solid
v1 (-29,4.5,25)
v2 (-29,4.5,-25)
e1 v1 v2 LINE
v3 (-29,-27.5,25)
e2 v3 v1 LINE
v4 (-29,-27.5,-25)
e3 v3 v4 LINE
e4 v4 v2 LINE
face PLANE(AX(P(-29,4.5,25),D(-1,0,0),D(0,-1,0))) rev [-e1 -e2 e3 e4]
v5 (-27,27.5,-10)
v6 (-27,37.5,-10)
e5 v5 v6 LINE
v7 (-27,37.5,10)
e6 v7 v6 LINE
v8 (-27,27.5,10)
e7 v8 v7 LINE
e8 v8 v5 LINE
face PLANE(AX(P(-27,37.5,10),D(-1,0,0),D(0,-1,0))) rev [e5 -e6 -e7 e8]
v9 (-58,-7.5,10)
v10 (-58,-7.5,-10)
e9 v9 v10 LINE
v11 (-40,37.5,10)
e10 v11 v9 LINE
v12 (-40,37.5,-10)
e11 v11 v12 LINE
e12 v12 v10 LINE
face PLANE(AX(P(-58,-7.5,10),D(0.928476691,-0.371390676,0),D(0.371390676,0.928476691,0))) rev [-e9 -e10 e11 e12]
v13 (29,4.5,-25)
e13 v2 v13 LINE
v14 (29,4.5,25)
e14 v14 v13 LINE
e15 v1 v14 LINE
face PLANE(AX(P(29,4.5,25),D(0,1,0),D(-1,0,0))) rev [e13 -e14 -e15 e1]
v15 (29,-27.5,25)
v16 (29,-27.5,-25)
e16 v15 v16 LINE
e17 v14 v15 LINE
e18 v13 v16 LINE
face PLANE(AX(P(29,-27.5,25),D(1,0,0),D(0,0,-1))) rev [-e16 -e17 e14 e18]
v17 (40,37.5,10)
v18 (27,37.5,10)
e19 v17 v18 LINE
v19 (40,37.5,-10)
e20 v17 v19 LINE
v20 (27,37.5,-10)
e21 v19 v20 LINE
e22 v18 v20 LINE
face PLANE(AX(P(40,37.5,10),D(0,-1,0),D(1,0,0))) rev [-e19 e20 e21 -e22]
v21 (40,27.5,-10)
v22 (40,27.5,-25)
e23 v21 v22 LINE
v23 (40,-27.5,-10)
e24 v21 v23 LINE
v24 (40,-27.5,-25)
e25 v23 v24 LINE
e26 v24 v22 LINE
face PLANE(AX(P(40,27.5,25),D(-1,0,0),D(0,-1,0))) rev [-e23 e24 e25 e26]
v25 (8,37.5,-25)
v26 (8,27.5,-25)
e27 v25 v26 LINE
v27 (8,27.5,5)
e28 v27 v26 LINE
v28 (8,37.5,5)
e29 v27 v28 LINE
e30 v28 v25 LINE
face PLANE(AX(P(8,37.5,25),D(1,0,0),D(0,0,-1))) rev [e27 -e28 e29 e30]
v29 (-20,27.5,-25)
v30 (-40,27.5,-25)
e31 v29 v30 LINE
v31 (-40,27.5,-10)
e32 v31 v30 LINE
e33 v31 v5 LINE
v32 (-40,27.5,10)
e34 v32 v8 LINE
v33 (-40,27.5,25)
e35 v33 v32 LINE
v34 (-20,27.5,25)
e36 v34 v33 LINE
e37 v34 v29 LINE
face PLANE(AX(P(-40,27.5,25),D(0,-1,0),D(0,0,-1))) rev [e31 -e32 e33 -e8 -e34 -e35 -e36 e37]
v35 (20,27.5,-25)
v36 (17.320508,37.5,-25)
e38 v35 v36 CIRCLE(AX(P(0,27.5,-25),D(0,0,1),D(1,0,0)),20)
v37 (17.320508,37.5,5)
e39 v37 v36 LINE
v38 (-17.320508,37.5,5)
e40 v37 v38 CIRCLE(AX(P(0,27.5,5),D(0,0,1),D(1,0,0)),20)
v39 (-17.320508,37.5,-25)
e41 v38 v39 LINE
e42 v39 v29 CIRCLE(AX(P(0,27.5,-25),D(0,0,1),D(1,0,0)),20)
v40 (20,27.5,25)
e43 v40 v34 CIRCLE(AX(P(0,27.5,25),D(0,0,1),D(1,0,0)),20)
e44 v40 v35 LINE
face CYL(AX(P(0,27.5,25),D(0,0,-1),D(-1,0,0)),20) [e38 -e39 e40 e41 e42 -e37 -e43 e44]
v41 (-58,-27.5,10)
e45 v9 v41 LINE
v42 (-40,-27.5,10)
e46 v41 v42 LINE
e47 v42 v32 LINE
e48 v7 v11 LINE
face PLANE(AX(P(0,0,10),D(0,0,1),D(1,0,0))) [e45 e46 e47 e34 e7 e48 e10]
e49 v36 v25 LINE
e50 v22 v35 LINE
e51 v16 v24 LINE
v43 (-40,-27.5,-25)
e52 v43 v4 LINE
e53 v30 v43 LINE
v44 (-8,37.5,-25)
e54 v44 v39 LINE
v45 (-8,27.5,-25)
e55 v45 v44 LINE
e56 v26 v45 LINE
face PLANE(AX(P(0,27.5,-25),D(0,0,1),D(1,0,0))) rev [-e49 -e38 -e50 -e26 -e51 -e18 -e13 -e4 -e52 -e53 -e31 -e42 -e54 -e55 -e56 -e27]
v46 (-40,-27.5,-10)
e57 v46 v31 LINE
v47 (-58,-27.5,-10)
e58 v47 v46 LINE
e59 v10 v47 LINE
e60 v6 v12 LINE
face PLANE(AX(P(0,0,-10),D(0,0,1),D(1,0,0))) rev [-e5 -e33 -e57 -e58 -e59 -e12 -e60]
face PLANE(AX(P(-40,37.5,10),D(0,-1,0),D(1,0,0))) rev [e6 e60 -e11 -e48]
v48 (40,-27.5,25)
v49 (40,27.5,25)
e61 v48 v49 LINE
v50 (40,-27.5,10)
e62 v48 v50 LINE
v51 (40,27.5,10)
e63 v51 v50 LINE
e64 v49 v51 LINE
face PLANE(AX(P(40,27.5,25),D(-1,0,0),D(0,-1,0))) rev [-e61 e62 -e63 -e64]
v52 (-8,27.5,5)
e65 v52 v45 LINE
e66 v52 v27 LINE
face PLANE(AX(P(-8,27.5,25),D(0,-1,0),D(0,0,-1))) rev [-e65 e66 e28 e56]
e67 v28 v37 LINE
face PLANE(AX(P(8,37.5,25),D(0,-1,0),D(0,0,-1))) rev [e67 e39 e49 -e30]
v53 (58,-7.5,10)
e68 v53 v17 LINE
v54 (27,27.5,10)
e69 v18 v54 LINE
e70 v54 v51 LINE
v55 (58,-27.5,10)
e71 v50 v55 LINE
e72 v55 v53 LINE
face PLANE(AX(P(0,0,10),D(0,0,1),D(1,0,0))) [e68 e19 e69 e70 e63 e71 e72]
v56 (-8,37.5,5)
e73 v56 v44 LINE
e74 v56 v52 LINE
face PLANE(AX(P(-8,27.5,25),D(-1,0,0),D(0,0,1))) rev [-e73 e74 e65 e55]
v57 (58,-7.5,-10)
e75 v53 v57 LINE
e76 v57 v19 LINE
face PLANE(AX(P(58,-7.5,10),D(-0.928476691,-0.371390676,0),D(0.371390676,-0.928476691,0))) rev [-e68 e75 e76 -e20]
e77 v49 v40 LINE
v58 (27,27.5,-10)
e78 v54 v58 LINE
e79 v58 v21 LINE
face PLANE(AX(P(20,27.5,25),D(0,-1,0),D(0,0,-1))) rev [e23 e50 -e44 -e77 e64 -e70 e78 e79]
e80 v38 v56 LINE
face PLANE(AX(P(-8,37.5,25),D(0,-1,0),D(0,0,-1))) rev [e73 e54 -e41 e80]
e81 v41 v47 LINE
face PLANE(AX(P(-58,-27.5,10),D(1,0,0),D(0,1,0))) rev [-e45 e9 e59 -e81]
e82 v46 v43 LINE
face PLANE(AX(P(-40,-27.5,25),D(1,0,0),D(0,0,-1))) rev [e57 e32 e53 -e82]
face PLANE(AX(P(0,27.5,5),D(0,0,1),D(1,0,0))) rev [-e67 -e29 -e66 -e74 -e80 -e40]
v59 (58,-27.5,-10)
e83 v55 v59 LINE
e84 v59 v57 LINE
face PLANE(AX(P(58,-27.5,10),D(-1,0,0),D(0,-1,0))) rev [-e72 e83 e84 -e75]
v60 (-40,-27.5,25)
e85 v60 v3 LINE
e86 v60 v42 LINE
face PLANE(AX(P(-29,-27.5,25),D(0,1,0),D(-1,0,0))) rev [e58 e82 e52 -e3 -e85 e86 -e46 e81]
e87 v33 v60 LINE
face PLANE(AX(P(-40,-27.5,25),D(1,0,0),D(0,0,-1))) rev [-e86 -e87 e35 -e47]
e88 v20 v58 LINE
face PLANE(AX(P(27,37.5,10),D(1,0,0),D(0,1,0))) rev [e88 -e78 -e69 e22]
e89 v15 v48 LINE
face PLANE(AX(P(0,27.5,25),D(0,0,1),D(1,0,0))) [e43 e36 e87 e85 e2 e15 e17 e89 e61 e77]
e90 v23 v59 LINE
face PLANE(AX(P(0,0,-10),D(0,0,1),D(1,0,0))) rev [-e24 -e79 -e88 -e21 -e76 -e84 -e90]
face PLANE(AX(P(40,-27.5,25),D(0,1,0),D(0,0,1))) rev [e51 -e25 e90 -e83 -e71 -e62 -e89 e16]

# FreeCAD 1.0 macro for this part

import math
import FreeCAD as App
import Part
import Sketcher

V = App.Vector

doc = App.newDocument("Part")
body = doc.addObject("PartDesign::Body", "Body")

# Sketch on XY plane
sketch1 = body.newObject("Sketcher::SketchObject", "Sketch")
sketch1.AttachmentSupport = (doc.getObject("XY_Plane"), [""])
sketch1.MapMode = "FlatFace"
sketch1.addGeometry(Part.LineSegment(V(-40, 28, 0), V(-40, -28, 0)), False)
sketch1.addGeometry(Part.LineSegment(V(-40, -28, 0), V(-29, -28, 0)), False)
sketch1.addGeometry(Part.LineSegment(V(-29, -28, 0), V(-29, 4, 0)), False)
sketch1.addGeometry(Part.LineSegment(V(-29, 4, 0), V(29, 4, 0)), False)
sketch1.addGeometry(Part.LineSegment(V(29, 4, 0), V(29, -28, 0)), False)
sketch1.addGeometry(Part.LineSegment(V(29, -28, 0), V(40, -28, 0)), False)
sketch1.addGeometry(Part.LineSegment(V(40, -28, 0), V(40, 28, 0)), False)
sketch1.addGeometry(Part.LineSegment(V(40, 28, 0), V(20, 28, 0)), False)
sketch1.addGeometry(Part.ArcOfCircle(Part.Circle(V(0, 28, 0), V(0, 0, 1), 20), math.radians(0), math.radians(30)), False)
sketch1.addGeometry(Part.LineSegment(V(17, 38, 0), V(8, 38, 0)), False)
sketch1.addGeometry(Part.LineSegment(V(8, 38, 0), V(8, 28, 0)), False)
sketch1.addGeometry(Part.LineSegment(V(8, 28, 0), V(-8, 28, 0)), False)
sketch1.addGeometry(Part.LineSegment(V(-8, 28, 0), V(-8, 38, 0)), False)
sketch1.addGeometry(Part.LineSegment(V(-8, 38, 0), V(-17, 38, 0)), False)
sketch1.addGeometry(Part.ArcOfCircle(Part.Circle(V(0, 28, 0), V(0, 0, 1), 20), math.radians(150), math.radians(180)), False)
sketch1.addGeometry(Part.LineSegment(V(-20, 28, 0), V(-40, 28, 0)), False)
sketch1.addConstraint(Sketcher.Constraint("Coincident", 0, 2, 1, 1))
sketch1.addConstraint(Sketcher.Constraint("Coincident", 1, 2, 2, 1))
sketch1.addConstraint(Sketcher.Constraint("Coincident", 2, 2, 3, 1))
sketch1.addConstraint(Sketcher.Constraint("Coincident", 3, 2, 4, 1))
sketch1.addConstraint(Sketcher.Constraint("Coincident", 4, 2, 5, 1))
sketch1.addConstraint(Sketcher.Constraint("Coincident", 5, 2, 6, 1))
sketch1.addConstraint(Sketcher.Constraint("Coincident", 6, 2, 7, 1))
sketch1.addConstraint(Sketcher.Constraint("Coincident", 7, 2, 8, 1))
sketch1.addConstraint(Sketcher.Constraint("Coincident", 8, 2, 9, 1))
sketch1.addConstraint(Sketcher.Constraint("Coincident", 9, 2, 10, 1))
sketch1.addConstraint(Sketcher.Constraint("Coincident", 10, 2, 11, 1))
sketch1.addConstraint(Sketcher.Constraint("Coincident", 11, 2, 12, 1))
sketch1.addConstraint(Sketcher.Constraint("Coincident", 12, 2, 13, 1))
sketch1.addConstraint(Sketcher.Constraint("Coincident", 13, 2, 14, 1))
sketch1.addConstraint(Sketcher.Constraint("Coincident", 14, 2, 15, 1))
sketch1.addConstraint(Sketcher.Constraint("Coincident", 15, 2, 0, 1))
sketch1.addConstraint(Sketcher.Constraint("Vertical", 0))
sketch1.addConstraint(Sketcher.Constraint("Horizontal", 1))
sketch1.addConstraint(Sketcher.Constraint("Vertical", 2))
sketch1.addConstraint(Sketcher.Constraint("Horizontal", 3))
sketch1.addConstraint(Sketcher.Constraint("Vertical", 4))
sketch1.addConstraint(Sketcher.Constraint("Horizontal", 5))
sketch1.addConstraint(Sketcher.Constraint("Vertical", 6))
sketch1.addConstraint(Sketcher.Constraint("Horizontal", 7))
sketch1.addConstraint(Sketcher.Constraint("Horizontal", 9))
sketch1.addConstraint(Sketcher.Constraint("Vertical", 10))
sketch1.addConstraint(Sketcher.Constraint("Horizontal", 11))
sketch1.addConstraint(Sketcher.Constraint("Vertical", 12))
sketch1.addConstraint(Sketcher.Constraint("Horizontal", 13))
sketch1.addConstraint(Sketcher.Constraint("Horizontal", 15))
sketch1.addConstraint(Sketcher.Constraint("Coincident", 14, 3, 8, 3))
sketch1.addConstraint(Sketcher.Constraint("Equal", 8, 14))
sketch1.addConstraint(Sketcher.Constraint("Symmetric", 0, 2, 6, 2, -1, 1))
sketch1.addConstraint(Sketcher.Constraint("Symmetric", 1, 2, 4, 2, -2))
sketch1.addConstraint(Sketcher.Constraint("Symmetric", 9, 2, 12, 2, -2))
sketch1.addConstraint(Sketcher.Constraint("Symmetric", 7, 2, 14, 2, -2))
sketch1.addConstraint(Sketcher.Constraint("Horizontal", 14, 3, 6, 2))
sketch1.addConstraint(Sketcher.Constraint("Horizontal", 7, 2, 10, 2))
sketch1.addConstraint(Sketcher.Constraint("Radius", 8, 20.0))
sketch1.addConstraint(Sketcher.Constraint("DistanceX", 1, 1, 1, 2, 11.0))
sketch1.addConstraint(Sketcher.Constraint("DistanceX", 3, 1, 3, 2, 58.0))
sketch1.addConstraint(Sketcher.Constraint("DistanceX", 11, 2, 11, 1, 16.0))
sketch1.addConstraint(Sketcher.Constraint("DistanceY", 0, 2, 0, 1, 55.0))
sketch1.addConstraint(Sketcher.Constraint("DistanceY", 2, 1, 2, 2, 32.0))
sketch1.addConstraint(Sketcher.Constraint("DistanceY", 10, 2, 10, 1, 10.0))
pad1 = body.newObject("PartDesign::Pad", "Pad")
pad1.Profile = sketch1
pad1.Length = 50
pad1.Midplane = True

# Sketch on XY plane
sketch2 = body.newObject("Sketcher::SketchObject", "Sketch001")
sketch2.AttachmentSupport = (doc.getObject("XY_Plane"), [""])
sketch2.MapMode = "FlatFace"
sketch2.AttachmentOffset = App.Placement(V(0, 0, 25), App.Rotation())
sketch2.addGeometry(Part.LineSegment(V(8, 38, 0), V(17, 38, 0)), False)
sketch2.addGeometry(Part.ArcOfCircle(Part.Circle(V(0, 27, 0), V(0, 0, 1), 20), math.radians(30), math.radians(150)), False)
sketch2.addGeometry(Part.LineSegment(V(-17, 38, 0), V(-8, 38, 0)), False)
sketch2.addGeometry(Part.LineSegment(V(-8, 38, 0), V(-8, 28, 0)), False)
sketch2.addGeometry(Part.LineSegment(V(-8, 28, 0), V(8, 28, 0)), False)
sketch2.addGeometry(Part.LineSegment(V(8, 28, 0), V(8, 38, 0)), False)
sketch2.addConstraint(Sketcher.Constraint("Coincident", 0, 2, 1, 1))
sketch2.addConstraint(Sketcher.Constraint("Coincident", 1, 2, 2, 1))
sketch2.addConstraint(Sketcher.Constraint("Coincident", 2, 2, 3, 1))
sketch2.addConstraint(Sketcher.Constraint("Coincident", 3, 2, 4, 1))
sketch2.addConstraint(Sketcher.Constraint("Coincident", 4, 2, 5, 1))
sketch2.addConstraint(Sketcher.Constraint("Coincident", 5, 2, 0, 1))
sketch2.addConstraint(Sketcher.Constraint("Horizontal", 0))
sketch2.addConstraint(Sketcher.Constraint("Horizontal", 2))
sketch2.addConstraint(Sketcher.Constraint("Vertical", 3))
sketch2.addConstraint(Sketcher.Constraint("Horizontal", 4))
sketch2.addConstraint(Sketcher.Constraint("Vertical", 5))
sketch2.addConstraint(Sketcher.Constraint("Symmetric", 0, 2, 1, 2, -2))
sketch2.addConstraint(Sketcher.Constraint("Horizontal", 1, 3, 3, 2))
sketch2.addConstraint(Sketcher.Constraint("Equal", 0, 2))
sketch2.addConstraint(Sketcher.Constraint("Radius", 1, 20.0))
sketch2.addConstraint(Sketcher.Constraint("DistanceX", 4, 1, 4, 2, 16.0))
sketch2.addConstraint(Sketcher.Constraint("DistanceY", 3, 2, 3, 1, 10.0))
sketch2.addConstraint(Sketcher.Constraint("DistanceY", -1, 1, 1, 3, 27.5))
pad2 = body.newObject("PartDesign::Pad", "Pad001")
pad2.Profile = sketch2
pad2.Length = 20
pad2.Reversed = True

# Sketch on XY plane
sketch3 = body.newObject("Sketcher::SketchObject", "Sketch002")
sketch3.AttachmentSupport = (doc.getObject("XY_Plane"), [""])
sketch3.MapMode = "FlatFace"
sketch3.addGeometry(Part.LineSegment(V(-40, -28, 0), V(-40, 28, 0)), False)
sketch3.addGeometry(Part.LineSegment(V(-40, 28, 0), V(-27, 28, 0)), False)
sketch3.addGeometry(Part.LineSegment(V(-27, 28, 0), V(-27, 38, 0)), False)
sketch3.addGeometry(Part.LineSegment(V(-27, 38, 0), V(-40, 38, 0)), False)
sketch3.addGeometry(Part.LineSegment(V(-40, 38, 0), V(-58, -8, 0)), False)
sketch3.addGeometry(Part.LineSegment(V(-58, -8, 0), V(-58, -28, 0)), False)
sketch3.addGeometry(Part.LineSegment(V(-58, -28, 0), V(-40, -28, 0)), False)
sketch3.addGeometry(Part.LineSegment(V(27, 28, 0), V(40, 28, 0)), False)
sketch3.addGeometry(Part.LineSegment(V(40, 28, 0), V(40, -28, 0)), False)
sketch3.addGeometry(Part.LineSegment(V(40, -28, 0), V(58, -28, 0)), False)
sketch3.addGeometry(Part.LineSegment(V(58, -28, 0), V(58, -8, 0)), False)
sketch3.addGeometry(Part.LineSegment(V(58, -8, 0), V(40, 38, 0)), False)
sketch3.addGeometry(Part.LineSegment(V(40, 38, 0), V(27, 38, 0)), False)
sketch3.addGeometry(Part.LineSegment(V(27, 38, 0), V(27, 28, 0)), False)
sketch3.addConstraint(Sketcher.Constraint("Coincident", 0, 2, 1, 1))
sketch3.addConstraint(Sketcher.Constraint("Coincident", 1, 2, 2, 1))
sketch3.addConstraint(Sketcher.Constraint("Coincident", 2, 2, 3, 1))
sketch3.addConstraint(Sketcher.Constraint("Coincident", 3, 2, 4, 1))
sketch3.addConstraint(Sketcher.Constraint("Coincident", 4, 2, 5, 1))
sketch3.addConstraint(Sketcher.Constraint("Coincident", 5, 2, 6, 1))
sketch3.addConstraint(Sketcher.Constraint("Coincident", 6, 2, 0, 1))
sketch3.addConstraint(Sketcher.Constraint("Coincident", 7, 2, 8, 1))
sketch3.addConstraint(Sketcher.Constraint("Coincident", 8, 2, 9, 1))
sketch3.addConstraint(Sketcher.Constraint("Coincident", 9, 2, 10, 1))
sketch3.addConstraint(Sketcher.Constraint("Coincident", 10, 2, 11, 1))
sketch3.addConstraint(Sketcher.Constraint("Coincident", 11, 2, 12, 1))
sketch3.addConstraint(Sketcher.Constraint("Coincident", 12, 2, 13, 1))
sketch3.addConstraint(Sketcher.Constraint("Coincident", 13, 2, 7, 1))
sketch3.addConstraint(Sketcher.Constraint("Vertical", 0))
sketch3.addConstraint(Sketcher.Constraint("Horizontal", 1))
sketch3.addConstraint(Sketcher.Constraint("Vertical", 2))
sketch3.addConstraint(Sketcher.Constraint("Horizontal", 3))
sketch3.addConstraint(Sketcher.Constraint("Vertical", 5))
sketch3.addConstraint(Sketcher.Constraint("Horizontal", 6))
sketch3.addConstraint(Sketcher.Constraint("Horizontal", 7))
sketch3.addConstraint(Sketcher.Constraint("Vertical", 8))
sketch3.addConstraint(Sketcher.Constraint("Horizontal", 9))
sketch3.addConstraint(Sketcher.Constraint("Vertical", 10))
sketch3.addConstraint(Sketcher.Constraint("Horizontal", 12))
sketch3.addConstraint(Sketcher.Constraint("Vertical", 13))
sketch3.addConstraint(Sketcher.Constraint("Symmetric", 6, 2, 7, 2, -1, 1))
sketch3.addConstraint(Sketcher.Constraint("Symmetric", 5, 2, 9, 2, -2))
sketch3.addConstraint(Sketcher.Constraint("Symmetric", 3, 2, 11, 2, -2))
sketch3.addConstraint(Sketcher.Constraint("Symmetric", 1, 2, 13, 2, -2))
sketch3.addConstraint(Sketcher.Constraint("Horizontal", 4, 2, 10, 2))
sketch3.addConstraint(Sketcher.Constraint("Vertical", 0, 2, 3, 2))
sketch3.addConstraint(Sketcher.Constraint("DistanceX", 1, 1, 1, 2, 13.0))
sketch3.addConstraint(Sketcher.Constraint("DistanceX", 6, 1, 6, 2, 18.0))
sketch3.addConstraint(Sketcher.Constraint("DistanceY", 0, 1, 0, 2, 55.0))
sketch3.addConstraint(Sketcher.Constraint("DistanceY", 2, 1, 2, 2, 10.0))
sketch3.addConstraint(Sketcher.Constraint("DistanceY", 5, 2, 5, 1, 20.0))
sketch3.addConstraint(Sketcher.Constraint("DistanceX", 0, 2, -1, 1, 40.0))
pad3 = body.newObject("PartDesign::Pad", "Pad002")
pad3.Profile = sketch3
pad3.Length = 20
pad3.Midplane = True

doc.recompute()
